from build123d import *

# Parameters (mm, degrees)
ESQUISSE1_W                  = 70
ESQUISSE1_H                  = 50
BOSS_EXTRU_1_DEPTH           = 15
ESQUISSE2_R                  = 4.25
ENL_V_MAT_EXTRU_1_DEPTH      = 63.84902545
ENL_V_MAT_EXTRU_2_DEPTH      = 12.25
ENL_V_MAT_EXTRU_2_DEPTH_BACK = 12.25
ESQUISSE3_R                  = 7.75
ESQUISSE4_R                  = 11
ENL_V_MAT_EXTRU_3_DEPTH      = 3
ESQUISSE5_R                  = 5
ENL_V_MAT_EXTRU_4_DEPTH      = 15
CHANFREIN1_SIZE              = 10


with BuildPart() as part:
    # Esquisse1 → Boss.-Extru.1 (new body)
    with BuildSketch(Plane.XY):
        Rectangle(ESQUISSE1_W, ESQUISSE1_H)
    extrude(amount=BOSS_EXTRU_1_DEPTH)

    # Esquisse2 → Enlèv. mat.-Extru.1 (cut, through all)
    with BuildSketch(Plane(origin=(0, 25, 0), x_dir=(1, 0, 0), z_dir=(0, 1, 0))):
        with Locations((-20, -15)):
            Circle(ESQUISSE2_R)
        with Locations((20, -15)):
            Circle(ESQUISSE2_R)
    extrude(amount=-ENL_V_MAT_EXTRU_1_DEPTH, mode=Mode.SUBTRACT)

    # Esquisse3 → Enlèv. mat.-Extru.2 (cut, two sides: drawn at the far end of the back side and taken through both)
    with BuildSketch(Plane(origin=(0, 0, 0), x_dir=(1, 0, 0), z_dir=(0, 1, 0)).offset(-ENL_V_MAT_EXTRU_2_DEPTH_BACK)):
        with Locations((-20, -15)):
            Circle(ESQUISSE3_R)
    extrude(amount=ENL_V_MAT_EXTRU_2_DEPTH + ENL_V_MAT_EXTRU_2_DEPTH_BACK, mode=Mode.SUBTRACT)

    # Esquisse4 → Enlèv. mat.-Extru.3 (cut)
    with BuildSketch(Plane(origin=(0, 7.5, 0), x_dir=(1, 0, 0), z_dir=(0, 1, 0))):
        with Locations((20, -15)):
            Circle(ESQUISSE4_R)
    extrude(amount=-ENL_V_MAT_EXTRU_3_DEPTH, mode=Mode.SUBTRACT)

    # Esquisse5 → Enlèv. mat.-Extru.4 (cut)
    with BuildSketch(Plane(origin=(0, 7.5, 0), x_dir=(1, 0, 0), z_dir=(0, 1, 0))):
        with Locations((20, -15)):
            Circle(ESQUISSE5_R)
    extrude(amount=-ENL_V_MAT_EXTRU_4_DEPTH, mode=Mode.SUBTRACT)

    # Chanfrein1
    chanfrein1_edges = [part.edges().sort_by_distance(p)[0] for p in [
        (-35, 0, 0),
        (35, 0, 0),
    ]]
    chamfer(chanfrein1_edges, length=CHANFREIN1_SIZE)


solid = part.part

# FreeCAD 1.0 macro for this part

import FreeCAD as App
import Part
import Sketcher

V = App.Vector
Q = App.Units.Quantity


def edges_at(feature, points):
    """Names of the edges that pass closest to the given points."""
    edges = feature.Shape.Edges
    near = lambda p: min(range(len(edges)), key=lambda i: edges[i].distToShape(Part.Vertex(*p))[0])
    return sorted({f"Edge{near(p) + 1}" for p in points})


def add_polygon(sketch, points):
    """Adds a closed chain of lines whose ends are joined by coincident constraints."""
    first, n = sketch.GeometryCount, len(points)
    for a, b in zip(points, points[1:] + points[:1]):
        sketch.addGeometry(Part.LineSegment(App.Vector(*a, 0), App.Vector(*b, 0)), False)
    for i in range(n):
        sketch.addConstraint(Sketcher.Constraint("Coincident", first + i, 2, first + (i + 1) % n, 1))

doc = App.newDocument("Part")
params = doc.addObject("Spreadsheet::Sheet", "Params")
for row, (alias, value) in enumerate([
    ("sketch1_width", "70 mm"),
    ("sketch1_height", "50 mm"),
    ("pad1_length", "15 mm"),
    ("sketch2_diameter", "8.5 mm"),
    ("sketch3_diameter", "15.5 mm"),
    ("pocket2_length", "12.25 mm"),
    ("pocket2_length2", "12.25 mm"),
    ("sketch4_diameter", "22 mm"),
    ("pocket3_length", "3 mm"),
    ("sketch5_diameter", "10 mm"),
    ("pocket4_length", "15 mm"),
    ("chamfer_size", "10 mm"),
], start=1):
    params.set(f"A{row}", alias)
    params.set(f"B{row}", "=" + value)
    params.setAlias(f"B{row}", alias)

body = doc.addObject("PartDesign::Body", "Body")

sketch1 = doc.addObject("Sketcher::SketchObject", "Sketch")
body.addObject(sketch1)
sketch1.AttachmentSupport = (doc.XY_Plane, [""])
sketch1.MapMode = "FlatFace"
add_polygon(sketch1, [(-35, 25), (-35, -25), (35, -25), (35, 25)])
sketch1.addConstraint([
    Sketcher.Constraint("Vertical", 0),
    Sketcher.Constraint("Horizontal", 1),
    Sketcher.Constraint("Vertical", 2),
    Sketcher.Constraint("Horizontal", 3),
    Sketcher.Constraint("Symmetric", 0, 2, 2, 2, -1, 1),
    Sketcher.Constraint("DistanceX", 1, 1, 1, 2, Q("70 mm")),
    Sketcher.Constraint("DistanceY", 0, 2, 0, 1, Q("50 mm")),
])
sketch1.setExpression("Constraints[9]", "Params.sketch1_width")
sketch1.setExpression("Constraints[10]", "Params.sketch1_height")
pad1 = doc.addObject("PartDesign::Pad", "Pad")
body.addObject(pad1)
pad1.Profile = sketch1
pad1.setExpression("Length", "Params.pad1_length")

sketch2 = doc.addObject("Sketcher::SketchObject", "Sketch001")
body.addObject(sketch2)
sketch2.AttachmentSupport = (doc.XZ_Plane, [""])
sketch2.MapMode = "FlatFace"
sketch2.AttachmentOffset = App.Placement(V(0, 0, -25), App.Rotation())
sketch2.addGeometry([
    Part.Circle(V(-20, 15, 0), V(0, 0, 1), 4.2),
    Part.Circle(V(20, 15, 0), V(0, 0, 1), 4.2),
], False)
sketch2.addConstraint([
    Sketcher.Constraint("Equal", 0, 1),
    Sketcher.Constraint("Symmetric", 0, 3, 1, 3, -2),
    Sketcher.Constraint("Diameter", 0, Q("8.5 mm")),
    Sketcher.Constraint("DistanceX", 0, 3, -1, 1, Q("20 mm")),
    Sketcher.Constraint("DistanceY", -1, 1, 0, 3, Q("15 mm")),
])
sketch2.setExpression("Constraints[2]", "Params.sketch2_diameter")
pocket1 = doc.addObject("PartDesign::Pocket", "Pocket")
body.addObject(pocket1)
pocket1.Profile = sketch2
pocket1.Type = "ThroughAll"
pocket1.Reversed = True

sketch3 = doc.addObject("Sketcher::SketchObject", "Sketch002")
body.addObject(sketch3)
sketch3.AttachmentSupport = (doc.XZ_Plane, [""])
sketch3.MapMode = "FlatFace"
sketch3.addGeometry(Part.Circle(V(-20, 15, 0), V(0, 0, 1), 8), False)
sketch3.addConstraint([
    Sketcher.Constraint("Diameter", 0, Q("15.5 mm")),
    Sketcher.Constraint("DistanceX", 0, 3, -1, 1, Q("20 mm")),
    Sketcher.Constraint("DistanceY", -1, 1, 0, 3, Q("15 mm")),
])
sketch3.setExpression("Constraints[0]", "Params.sketch3_diameter")
pocket2 = doc.addObject("PartDesign::Pocket", "Pocket001")
body.addObject(pocket2)
pocket2.Profile = sketch3
pocket2.Type = "TwoLengths"
pocket2.setExpression("Length", "Params.pocket2_length")
pocket2.setExpression("Length2", "Params.pocket2_length2")

sketch4 = doc.addObject("Sketcher::SketchObject", "Sketch003")
body.addObject(sketch4)
sketch4.AttachmentSupport = (doc.XZ_Plane, [""])
sketch4.MapMode = "FlatFace"
sketch4.AttachmentOffset = App.Placement(V(0, 0, -7.5), App.Rotation())
sketch4.addGeometry(Part.Circle(V(20, 15, 0), V(0, 0, 1), 11), False)
sketch4.addConstraint([
    Sketcher.Constraint("Diameter", 0, Q("22 mm")),
    Sketcher.Constraint("DistanceX", -1, 1, 0, 3, Q("20 mm")),
    Sketcher.Constraint("DistanceY", -1, 1, 0, 3, Q("15 mm")),
])
sketch4.setExpression("Constraints[0]", "Params.sketch4_diameter")
pocket3 = doc.addObject("PartDesign::Pocket", "Pocket002")
body.addObject(pocket3)
pocket3.Profile = sketch4
pocket3.setExpression("Length", "Params.pocket3_length")
pocket3.Reversed = True

sketch5 = doc.addObject("Sketcher::SketchObject", "Sketch004")
body.addObject(sketch5)
sketch5.AttachmentSupport = (doc.XZ_Plane, [""])
sketch5.MapMode = "FlatFace"
sketch5.AttachmentOffset = App.Placement(V(0, 0, -7.5), App.Rotation())
sketch5.addGeometry(Part.Circle(V(20, 15, 0), V(0, 0, 1), 5), False)
sketch5.addConstraint([
    Sketcher.Constraint("Diameter", 0, Q("10 mm")),
    Sketcher.Constraint("DistanceX", -1, 1, 0, 3, Q("20 mm")),
    Sketcher.Constraint("DistanceY", -1, 1, 0, 3, Q("15 mm")),
])
sketch5.setExpression("Constraints[0]", "Params.sketch5_diameter")
pocket4 = doc.addObject("PartDesign::Pocket", "Pocket003")
body.addObject(pocket4)
pocket4.Profile = sketch5
pocket4.setExpression("Length", "Params.pocket4_length")
pocket4.Reversed = True
doc.recompute()

chamfer = doc.addObject("PartDesign::Chamfer", "Chamfer")
body.addObject(chamfer)
chamfer.Base = (pocket4, edges_at(pocket4, [(-35, 0, 0), (35, 0, 0)]))
chamfer.setExpression("Size", "Params.chamfer_size")

doc.recompute()
